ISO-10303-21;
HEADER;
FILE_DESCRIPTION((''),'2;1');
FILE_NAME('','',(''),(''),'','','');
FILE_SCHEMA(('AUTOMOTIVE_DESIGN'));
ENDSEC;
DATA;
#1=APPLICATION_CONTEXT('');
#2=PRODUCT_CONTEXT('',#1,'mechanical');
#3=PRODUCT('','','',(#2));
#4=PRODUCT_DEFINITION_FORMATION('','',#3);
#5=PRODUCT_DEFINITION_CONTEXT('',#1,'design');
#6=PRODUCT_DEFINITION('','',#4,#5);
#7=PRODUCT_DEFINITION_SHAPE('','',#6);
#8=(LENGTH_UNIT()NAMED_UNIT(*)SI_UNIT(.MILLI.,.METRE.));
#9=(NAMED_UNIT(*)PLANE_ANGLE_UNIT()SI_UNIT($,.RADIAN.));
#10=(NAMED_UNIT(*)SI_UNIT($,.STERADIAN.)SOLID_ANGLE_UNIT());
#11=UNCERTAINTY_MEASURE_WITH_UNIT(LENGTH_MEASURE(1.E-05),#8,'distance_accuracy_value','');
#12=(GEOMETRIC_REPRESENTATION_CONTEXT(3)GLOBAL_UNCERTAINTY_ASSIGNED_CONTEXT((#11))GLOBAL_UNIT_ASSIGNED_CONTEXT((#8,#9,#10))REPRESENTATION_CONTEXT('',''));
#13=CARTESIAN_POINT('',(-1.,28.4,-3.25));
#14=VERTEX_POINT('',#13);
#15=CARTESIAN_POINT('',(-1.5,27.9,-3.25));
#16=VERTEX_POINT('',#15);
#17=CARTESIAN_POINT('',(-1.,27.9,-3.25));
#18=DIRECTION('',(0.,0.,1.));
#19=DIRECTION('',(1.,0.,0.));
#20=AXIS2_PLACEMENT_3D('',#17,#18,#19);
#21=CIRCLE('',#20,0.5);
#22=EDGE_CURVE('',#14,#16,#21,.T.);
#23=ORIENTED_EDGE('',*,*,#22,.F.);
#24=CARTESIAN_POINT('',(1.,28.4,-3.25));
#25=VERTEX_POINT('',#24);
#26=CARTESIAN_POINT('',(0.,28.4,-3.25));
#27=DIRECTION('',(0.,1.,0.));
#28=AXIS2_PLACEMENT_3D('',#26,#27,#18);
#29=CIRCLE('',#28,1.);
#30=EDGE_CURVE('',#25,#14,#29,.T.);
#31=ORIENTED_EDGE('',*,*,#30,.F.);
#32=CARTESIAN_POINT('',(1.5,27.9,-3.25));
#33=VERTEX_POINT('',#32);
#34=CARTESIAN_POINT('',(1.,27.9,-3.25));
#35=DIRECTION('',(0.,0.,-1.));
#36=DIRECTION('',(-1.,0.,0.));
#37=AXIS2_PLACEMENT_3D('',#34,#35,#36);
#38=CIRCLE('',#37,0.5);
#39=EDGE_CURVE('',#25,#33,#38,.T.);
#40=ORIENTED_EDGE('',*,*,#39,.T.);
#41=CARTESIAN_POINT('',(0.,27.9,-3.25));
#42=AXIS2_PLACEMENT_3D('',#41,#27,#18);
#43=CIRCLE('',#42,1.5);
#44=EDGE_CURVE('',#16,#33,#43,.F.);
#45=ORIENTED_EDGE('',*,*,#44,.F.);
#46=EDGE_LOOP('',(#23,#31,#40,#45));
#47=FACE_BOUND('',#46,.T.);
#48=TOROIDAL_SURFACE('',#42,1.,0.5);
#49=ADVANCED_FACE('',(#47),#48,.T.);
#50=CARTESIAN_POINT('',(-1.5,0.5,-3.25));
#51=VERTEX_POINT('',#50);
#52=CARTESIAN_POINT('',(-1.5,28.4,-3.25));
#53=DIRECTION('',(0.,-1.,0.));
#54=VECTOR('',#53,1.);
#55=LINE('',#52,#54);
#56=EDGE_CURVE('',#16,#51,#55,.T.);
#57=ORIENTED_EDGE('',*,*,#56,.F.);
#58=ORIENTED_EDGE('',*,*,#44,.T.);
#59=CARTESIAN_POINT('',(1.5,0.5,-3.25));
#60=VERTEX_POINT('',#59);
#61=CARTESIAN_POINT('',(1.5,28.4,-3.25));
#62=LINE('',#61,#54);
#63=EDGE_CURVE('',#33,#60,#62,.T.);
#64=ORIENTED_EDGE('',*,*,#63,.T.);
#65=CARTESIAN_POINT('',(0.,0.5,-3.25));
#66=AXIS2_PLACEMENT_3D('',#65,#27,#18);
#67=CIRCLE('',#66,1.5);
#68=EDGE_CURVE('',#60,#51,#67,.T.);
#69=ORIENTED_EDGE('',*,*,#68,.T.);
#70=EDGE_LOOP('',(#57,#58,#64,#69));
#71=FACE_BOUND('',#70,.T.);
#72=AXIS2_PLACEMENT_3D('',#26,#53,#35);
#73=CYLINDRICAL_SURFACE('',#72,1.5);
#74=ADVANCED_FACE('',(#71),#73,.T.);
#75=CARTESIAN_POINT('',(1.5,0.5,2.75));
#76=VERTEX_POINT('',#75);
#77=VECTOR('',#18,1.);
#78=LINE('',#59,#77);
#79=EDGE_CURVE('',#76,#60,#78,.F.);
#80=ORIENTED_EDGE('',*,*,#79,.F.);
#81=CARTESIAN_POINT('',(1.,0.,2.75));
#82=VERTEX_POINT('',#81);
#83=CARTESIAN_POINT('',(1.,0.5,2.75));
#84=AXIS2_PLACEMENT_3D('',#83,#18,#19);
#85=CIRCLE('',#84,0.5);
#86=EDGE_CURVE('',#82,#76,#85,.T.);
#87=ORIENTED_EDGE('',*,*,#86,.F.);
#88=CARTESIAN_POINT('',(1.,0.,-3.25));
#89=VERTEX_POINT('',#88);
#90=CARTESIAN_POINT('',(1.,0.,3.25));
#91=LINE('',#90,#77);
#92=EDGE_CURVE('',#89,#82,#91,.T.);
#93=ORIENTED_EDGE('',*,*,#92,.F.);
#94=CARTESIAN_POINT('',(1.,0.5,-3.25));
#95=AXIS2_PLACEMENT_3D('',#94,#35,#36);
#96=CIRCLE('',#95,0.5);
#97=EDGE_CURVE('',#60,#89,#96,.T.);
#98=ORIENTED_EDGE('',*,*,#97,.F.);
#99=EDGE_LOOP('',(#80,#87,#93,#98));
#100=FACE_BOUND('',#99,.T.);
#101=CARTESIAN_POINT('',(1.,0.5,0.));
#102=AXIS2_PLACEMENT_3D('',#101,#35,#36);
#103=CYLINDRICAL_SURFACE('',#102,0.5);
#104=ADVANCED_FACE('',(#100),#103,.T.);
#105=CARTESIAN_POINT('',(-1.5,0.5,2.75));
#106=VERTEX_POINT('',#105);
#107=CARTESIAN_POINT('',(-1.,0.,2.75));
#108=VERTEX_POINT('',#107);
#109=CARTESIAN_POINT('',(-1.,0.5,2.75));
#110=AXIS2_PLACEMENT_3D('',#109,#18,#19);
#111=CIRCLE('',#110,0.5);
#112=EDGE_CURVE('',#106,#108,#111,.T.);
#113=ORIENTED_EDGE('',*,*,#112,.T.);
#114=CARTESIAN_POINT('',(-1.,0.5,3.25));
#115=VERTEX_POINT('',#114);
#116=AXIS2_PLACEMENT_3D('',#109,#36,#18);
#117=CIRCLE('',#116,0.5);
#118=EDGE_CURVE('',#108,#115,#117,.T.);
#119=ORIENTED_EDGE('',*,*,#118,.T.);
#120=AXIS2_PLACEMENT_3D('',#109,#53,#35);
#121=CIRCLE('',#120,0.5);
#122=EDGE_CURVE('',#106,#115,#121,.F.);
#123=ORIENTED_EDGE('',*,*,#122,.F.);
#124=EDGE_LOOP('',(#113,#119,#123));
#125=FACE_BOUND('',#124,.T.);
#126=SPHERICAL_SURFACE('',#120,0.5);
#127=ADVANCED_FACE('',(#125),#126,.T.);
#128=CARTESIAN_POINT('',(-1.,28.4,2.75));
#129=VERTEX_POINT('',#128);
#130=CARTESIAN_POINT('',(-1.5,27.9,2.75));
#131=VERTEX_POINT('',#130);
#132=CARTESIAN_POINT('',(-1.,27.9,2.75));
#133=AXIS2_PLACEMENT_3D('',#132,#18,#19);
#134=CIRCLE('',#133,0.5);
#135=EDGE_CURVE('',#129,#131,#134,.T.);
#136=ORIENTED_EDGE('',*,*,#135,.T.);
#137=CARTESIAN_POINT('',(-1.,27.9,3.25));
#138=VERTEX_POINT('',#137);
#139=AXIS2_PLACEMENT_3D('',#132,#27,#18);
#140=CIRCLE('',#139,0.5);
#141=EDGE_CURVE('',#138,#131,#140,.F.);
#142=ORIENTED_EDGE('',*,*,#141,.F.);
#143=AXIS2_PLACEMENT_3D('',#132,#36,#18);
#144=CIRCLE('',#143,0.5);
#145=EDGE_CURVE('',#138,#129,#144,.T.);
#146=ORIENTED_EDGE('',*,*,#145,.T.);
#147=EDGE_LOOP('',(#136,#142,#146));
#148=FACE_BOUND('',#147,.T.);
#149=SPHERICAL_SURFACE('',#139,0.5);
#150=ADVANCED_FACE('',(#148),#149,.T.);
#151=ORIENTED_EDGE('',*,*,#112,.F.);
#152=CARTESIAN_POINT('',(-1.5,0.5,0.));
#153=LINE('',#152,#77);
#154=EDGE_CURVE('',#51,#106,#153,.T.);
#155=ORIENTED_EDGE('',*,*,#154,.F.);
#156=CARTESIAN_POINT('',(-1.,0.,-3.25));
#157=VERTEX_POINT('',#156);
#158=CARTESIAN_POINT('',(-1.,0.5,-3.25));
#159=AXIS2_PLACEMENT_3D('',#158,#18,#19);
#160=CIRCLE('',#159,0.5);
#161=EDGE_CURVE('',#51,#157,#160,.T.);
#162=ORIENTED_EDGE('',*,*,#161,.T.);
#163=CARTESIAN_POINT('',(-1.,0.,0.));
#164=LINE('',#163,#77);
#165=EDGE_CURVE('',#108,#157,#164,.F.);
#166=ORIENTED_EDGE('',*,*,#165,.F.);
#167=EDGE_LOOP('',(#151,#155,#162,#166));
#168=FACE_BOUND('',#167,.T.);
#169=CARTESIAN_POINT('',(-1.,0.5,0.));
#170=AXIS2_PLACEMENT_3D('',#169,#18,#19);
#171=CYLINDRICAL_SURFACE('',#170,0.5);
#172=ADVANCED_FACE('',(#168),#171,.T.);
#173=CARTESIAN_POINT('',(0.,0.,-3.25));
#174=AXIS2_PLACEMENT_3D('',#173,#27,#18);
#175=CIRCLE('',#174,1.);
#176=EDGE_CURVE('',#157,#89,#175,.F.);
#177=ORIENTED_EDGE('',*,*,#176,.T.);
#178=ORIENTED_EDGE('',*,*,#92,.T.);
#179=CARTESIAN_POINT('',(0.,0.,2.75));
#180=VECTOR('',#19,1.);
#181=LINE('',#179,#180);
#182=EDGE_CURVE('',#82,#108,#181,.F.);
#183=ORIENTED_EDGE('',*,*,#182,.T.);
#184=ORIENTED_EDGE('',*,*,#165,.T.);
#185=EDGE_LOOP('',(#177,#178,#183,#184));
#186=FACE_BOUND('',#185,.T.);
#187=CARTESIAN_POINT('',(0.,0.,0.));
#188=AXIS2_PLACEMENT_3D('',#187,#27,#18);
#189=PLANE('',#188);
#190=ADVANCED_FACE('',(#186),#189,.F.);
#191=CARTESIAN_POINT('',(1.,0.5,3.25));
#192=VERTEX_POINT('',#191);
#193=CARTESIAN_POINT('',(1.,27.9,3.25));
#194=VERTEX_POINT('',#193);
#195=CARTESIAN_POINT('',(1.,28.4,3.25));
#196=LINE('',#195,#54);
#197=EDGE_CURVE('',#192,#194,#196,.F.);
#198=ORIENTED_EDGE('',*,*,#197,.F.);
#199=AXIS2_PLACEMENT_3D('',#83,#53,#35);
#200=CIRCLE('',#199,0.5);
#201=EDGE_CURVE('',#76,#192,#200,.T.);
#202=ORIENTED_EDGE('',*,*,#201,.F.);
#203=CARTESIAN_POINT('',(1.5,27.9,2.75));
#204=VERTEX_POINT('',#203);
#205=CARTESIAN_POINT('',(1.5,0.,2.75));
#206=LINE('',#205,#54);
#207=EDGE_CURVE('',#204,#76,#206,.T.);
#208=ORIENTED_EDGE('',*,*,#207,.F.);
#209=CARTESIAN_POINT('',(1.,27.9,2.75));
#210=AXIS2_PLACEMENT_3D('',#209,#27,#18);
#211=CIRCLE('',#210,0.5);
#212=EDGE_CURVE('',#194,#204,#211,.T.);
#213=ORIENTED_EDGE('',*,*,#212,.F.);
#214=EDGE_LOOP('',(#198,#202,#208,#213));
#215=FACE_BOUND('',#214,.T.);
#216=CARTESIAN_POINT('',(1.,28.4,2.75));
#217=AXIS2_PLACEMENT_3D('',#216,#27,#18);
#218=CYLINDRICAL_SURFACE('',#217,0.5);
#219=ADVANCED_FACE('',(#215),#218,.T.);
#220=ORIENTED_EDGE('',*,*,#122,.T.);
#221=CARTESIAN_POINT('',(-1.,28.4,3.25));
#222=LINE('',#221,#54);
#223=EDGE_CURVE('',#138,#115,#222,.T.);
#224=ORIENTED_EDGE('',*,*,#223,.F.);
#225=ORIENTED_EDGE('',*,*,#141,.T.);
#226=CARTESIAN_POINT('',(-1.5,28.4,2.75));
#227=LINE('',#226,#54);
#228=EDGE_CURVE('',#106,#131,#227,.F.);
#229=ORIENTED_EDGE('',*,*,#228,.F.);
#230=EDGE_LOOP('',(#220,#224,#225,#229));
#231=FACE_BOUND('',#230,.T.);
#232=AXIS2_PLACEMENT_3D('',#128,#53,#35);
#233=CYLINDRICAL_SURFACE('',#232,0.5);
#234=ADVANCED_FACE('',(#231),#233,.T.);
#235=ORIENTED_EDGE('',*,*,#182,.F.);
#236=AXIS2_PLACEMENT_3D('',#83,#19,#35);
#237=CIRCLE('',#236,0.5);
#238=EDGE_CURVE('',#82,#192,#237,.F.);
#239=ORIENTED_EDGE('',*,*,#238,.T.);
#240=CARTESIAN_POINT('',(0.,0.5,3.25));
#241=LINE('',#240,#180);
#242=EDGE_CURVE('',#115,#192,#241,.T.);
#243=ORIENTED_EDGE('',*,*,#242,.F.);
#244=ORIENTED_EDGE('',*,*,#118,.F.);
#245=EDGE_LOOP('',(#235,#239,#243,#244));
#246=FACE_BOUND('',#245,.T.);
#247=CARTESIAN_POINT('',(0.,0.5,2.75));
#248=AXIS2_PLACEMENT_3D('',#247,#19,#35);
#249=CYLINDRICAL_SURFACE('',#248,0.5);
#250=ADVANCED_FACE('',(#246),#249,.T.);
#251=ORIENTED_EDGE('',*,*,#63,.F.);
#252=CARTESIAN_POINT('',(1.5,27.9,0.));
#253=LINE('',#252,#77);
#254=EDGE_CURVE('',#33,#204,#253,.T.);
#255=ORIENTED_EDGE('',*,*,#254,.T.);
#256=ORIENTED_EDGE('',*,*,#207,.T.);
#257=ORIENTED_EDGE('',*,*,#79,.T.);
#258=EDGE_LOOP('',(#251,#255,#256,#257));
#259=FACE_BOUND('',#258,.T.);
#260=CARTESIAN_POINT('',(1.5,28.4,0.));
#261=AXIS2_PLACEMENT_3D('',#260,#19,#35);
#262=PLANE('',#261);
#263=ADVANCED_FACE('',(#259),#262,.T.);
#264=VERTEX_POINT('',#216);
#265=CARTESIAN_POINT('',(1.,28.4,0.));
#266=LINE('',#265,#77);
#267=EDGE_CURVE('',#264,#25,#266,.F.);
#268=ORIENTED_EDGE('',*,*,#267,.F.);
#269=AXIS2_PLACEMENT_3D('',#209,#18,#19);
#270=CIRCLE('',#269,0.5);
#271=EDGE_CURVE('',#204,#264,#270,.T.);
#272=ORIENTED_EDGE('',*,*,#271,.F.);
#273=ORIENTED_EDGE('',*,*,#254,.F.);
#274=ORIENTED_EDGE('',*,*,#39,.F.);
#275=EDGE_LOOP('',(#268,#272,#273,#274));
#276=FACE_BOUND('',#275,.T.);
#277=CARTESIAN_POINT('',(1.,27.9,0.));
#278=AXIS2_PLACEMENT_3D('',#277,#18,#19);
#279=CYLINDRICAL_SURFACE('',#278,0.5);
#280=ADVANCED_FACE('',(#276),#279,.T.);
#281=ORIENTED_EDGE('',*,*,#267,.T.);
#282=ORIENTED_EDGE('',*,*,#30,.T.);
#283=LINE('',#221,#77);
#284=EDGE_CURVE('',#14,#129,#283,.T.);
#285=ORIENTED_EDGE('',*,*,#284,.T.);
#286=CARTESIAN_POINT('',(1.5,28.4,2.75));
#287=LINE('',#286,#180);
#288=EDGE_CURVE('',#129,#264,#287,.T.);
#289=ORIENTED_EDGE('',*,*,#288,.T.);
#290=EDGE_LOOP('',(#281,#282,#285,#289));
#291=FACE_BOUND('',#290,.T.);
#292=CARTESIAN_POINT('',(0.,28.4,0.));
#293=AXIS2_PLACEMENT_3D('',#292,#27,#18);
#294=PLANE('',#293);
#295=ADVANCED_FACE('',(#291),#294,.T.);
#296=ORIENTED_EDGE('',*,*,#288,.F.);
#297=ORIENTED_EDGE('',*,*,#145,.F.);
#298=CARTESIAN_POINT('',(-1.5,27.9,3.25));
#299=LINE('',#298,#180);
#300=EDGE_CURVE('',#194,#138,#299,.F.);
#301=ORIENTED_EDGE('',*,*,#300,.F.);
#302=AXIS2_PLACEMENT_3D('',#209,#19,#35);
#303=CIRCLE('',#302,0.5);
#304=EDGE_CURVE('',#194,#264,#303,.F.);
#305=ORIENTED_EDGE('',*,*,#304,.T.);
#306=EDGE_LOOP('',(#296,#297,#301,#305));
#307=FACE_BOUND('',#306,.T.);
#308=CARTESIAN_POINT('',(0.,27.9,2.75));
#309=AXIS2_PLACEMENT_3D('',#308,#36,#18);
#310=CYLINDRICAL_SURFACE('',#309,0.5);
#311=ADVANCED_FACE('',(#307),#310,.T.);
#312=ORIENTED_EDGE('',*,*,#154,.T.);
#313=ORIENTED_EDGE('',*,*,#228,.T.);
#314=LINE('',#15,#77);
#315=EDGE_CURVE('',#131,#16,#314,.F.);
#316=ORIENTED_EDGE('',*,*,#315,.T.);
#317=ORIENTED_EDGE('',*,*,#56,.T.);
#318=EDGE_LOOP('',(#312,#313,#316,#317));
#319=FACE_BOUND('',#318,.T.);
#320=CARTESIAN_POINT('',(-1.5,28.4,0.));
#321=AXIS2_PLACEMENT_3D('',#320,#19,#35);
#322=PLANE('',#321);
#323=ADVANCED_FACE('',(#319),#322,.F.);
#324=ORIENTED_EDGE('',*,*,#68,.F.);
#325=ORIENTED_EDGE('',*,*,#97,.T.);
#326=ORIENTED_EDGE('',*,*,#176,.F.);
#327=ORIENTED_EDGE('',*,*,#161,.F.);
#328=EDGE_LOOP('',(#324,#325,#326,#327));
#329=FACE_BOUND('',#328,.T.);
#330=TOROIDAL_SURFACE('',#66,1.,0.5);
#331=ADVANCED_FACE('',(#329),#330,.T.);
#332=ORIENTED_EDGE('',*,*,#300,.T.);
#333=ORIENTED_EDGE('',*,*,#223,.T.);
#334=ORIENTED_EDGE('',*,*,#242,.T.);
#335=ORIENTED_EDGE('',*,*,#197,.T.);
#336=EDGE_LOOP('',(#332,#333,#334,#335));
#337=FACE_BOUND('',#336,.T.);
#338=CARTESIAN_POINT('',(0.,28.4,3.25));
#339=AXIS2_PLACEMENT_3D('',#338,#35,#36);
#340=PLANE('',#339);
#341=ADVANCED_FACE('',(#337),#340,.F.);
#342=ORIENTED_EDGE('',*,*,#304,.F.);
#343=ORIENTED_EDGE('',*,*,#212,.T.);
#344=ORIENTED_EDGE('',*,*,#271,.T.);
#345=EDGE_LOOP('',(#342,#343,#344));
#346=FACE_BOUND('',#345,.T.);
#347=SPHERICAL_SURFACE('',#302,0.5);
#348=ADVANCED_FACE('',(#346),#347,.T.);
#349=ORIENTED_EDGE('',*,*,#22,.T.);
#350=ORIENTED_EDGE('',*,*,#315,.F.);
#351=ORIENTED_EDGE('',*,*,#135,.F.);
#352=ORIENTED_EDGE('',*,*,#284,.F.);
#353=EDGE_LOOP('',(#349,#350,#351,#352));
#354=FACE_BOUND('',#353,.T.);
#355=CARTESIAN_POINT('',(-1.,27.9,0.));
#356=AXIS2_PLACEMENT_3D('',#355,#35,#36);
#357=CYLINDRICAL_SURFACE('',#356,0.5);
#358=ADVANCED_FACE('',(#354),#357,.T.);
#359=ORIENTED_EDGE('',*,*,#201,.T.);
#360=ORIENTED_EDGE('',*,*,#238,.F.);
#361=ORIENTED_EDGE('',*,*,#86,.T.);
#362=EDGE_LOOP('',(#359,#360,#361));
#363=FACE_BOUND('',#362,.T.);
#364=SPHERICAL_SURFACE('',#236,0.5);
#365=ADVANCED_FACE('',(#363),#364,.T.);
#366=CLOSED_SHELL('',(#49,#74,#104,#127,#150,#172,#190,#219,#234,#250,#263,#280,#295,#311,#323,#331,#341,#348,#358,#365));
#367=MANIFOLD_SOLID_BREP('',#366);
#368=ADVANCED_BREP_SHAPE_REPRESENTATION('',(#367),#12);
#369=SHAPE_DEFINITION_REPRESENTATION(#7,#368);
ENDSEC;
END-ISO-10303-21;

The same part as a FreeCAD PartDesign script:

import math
import FreeCAD as App
import Part
import Sketcher

doc = App.newDocument("Part")
params = doc.addObject("Spreadsheet::Sheet", "Params")
for row, (alias, value) in enumerate([
    ("sketch1_radius", "1.5 mm"),
    ("sketch1_height", "6.5 mm"),
    ("pad1_length", "28.4 mm"),
    ("fillet_radius", "0.5 mm"),
], start=1):
    params.set(f"A{row}", alias)
    params.set(f"B{row}", "=" + value)
    params.setAlias(f"B{row}", alias)

body = doc.addObject("PartDesign::Body", "Body")

sketch1 = body.newObject("Sketcher::SketchObject", "Sketch")
sketch1.AttachmentSupport = (doc.getObject("XZ_Plane"), [""])
sketch1.MapMode = "FlatFace"
sketch1.addGeometry([
    Part.ArcOfCircle(Part.Circle(App.Vector(0, -3.2, 0), App.Vector(0, 0, 1), 1.5), math.radians(180), math.radians(360)),
    Part.LineSegment(App.Vector(-1.5, -3.2, 0), App.Vector(-1.5, 3.2, 0)),
    Part.LineSegment(App.Vector(-1.5, 3.2, 0), App.Vector(1.5, 3.2, 0)),
    Part.LineSegment(App.Vector(1.5, 3.2, 0), App.Vector(1.5, -3.2, 0)),
], False)
sketch1.addConstraint([
    Sketcher.Constraint("Tangent", 0, 1, 1, 1),
    Sketcher.Constraint("Coincident", 1, 2, 2, 1),
    Sketcher.Constraint("Coincident", 2, 2, 3, 1),
    Sketcher.Constraint("Tangent", 3, 2, 0, 2),
    Sketcher.Constraint("Vertical", 1),
    Sketcher.Constraint("Horizontal", 2),
    Sketcher.Constraint("Vertical", 3),
    Sketcher.Constraint("Symmetric", 0, 1, 2, 2, -1, 1),
    Sketcher.Constraint("Radius", 0, 1.5),
    Sketcher.Constraint("DistanceY", 1, 1, 1, 2, 6.5),
])
sketch1.setExpression("Constraints[8]", "Params.sketch1_radius")
sketch1.setExpression("Constraints[9]", "Params.sketch1_height")
pad1 = body.newObject("PartDesign::Pad", "Pad")
pad1.Profile = sketch1
pad1.setExpression("Length", "Params.pad1_length")
pad1.Reversed = True
doc.recompute()

fillet = body.newObject("PartDesign::Fillet", "Fillet")
fillet.Base = (pad1, ["Edge1"])
fillet.UseAllEdges = True
fillet.setExpression("Radius", "Params.fillet_radius")

doc.recompute()
